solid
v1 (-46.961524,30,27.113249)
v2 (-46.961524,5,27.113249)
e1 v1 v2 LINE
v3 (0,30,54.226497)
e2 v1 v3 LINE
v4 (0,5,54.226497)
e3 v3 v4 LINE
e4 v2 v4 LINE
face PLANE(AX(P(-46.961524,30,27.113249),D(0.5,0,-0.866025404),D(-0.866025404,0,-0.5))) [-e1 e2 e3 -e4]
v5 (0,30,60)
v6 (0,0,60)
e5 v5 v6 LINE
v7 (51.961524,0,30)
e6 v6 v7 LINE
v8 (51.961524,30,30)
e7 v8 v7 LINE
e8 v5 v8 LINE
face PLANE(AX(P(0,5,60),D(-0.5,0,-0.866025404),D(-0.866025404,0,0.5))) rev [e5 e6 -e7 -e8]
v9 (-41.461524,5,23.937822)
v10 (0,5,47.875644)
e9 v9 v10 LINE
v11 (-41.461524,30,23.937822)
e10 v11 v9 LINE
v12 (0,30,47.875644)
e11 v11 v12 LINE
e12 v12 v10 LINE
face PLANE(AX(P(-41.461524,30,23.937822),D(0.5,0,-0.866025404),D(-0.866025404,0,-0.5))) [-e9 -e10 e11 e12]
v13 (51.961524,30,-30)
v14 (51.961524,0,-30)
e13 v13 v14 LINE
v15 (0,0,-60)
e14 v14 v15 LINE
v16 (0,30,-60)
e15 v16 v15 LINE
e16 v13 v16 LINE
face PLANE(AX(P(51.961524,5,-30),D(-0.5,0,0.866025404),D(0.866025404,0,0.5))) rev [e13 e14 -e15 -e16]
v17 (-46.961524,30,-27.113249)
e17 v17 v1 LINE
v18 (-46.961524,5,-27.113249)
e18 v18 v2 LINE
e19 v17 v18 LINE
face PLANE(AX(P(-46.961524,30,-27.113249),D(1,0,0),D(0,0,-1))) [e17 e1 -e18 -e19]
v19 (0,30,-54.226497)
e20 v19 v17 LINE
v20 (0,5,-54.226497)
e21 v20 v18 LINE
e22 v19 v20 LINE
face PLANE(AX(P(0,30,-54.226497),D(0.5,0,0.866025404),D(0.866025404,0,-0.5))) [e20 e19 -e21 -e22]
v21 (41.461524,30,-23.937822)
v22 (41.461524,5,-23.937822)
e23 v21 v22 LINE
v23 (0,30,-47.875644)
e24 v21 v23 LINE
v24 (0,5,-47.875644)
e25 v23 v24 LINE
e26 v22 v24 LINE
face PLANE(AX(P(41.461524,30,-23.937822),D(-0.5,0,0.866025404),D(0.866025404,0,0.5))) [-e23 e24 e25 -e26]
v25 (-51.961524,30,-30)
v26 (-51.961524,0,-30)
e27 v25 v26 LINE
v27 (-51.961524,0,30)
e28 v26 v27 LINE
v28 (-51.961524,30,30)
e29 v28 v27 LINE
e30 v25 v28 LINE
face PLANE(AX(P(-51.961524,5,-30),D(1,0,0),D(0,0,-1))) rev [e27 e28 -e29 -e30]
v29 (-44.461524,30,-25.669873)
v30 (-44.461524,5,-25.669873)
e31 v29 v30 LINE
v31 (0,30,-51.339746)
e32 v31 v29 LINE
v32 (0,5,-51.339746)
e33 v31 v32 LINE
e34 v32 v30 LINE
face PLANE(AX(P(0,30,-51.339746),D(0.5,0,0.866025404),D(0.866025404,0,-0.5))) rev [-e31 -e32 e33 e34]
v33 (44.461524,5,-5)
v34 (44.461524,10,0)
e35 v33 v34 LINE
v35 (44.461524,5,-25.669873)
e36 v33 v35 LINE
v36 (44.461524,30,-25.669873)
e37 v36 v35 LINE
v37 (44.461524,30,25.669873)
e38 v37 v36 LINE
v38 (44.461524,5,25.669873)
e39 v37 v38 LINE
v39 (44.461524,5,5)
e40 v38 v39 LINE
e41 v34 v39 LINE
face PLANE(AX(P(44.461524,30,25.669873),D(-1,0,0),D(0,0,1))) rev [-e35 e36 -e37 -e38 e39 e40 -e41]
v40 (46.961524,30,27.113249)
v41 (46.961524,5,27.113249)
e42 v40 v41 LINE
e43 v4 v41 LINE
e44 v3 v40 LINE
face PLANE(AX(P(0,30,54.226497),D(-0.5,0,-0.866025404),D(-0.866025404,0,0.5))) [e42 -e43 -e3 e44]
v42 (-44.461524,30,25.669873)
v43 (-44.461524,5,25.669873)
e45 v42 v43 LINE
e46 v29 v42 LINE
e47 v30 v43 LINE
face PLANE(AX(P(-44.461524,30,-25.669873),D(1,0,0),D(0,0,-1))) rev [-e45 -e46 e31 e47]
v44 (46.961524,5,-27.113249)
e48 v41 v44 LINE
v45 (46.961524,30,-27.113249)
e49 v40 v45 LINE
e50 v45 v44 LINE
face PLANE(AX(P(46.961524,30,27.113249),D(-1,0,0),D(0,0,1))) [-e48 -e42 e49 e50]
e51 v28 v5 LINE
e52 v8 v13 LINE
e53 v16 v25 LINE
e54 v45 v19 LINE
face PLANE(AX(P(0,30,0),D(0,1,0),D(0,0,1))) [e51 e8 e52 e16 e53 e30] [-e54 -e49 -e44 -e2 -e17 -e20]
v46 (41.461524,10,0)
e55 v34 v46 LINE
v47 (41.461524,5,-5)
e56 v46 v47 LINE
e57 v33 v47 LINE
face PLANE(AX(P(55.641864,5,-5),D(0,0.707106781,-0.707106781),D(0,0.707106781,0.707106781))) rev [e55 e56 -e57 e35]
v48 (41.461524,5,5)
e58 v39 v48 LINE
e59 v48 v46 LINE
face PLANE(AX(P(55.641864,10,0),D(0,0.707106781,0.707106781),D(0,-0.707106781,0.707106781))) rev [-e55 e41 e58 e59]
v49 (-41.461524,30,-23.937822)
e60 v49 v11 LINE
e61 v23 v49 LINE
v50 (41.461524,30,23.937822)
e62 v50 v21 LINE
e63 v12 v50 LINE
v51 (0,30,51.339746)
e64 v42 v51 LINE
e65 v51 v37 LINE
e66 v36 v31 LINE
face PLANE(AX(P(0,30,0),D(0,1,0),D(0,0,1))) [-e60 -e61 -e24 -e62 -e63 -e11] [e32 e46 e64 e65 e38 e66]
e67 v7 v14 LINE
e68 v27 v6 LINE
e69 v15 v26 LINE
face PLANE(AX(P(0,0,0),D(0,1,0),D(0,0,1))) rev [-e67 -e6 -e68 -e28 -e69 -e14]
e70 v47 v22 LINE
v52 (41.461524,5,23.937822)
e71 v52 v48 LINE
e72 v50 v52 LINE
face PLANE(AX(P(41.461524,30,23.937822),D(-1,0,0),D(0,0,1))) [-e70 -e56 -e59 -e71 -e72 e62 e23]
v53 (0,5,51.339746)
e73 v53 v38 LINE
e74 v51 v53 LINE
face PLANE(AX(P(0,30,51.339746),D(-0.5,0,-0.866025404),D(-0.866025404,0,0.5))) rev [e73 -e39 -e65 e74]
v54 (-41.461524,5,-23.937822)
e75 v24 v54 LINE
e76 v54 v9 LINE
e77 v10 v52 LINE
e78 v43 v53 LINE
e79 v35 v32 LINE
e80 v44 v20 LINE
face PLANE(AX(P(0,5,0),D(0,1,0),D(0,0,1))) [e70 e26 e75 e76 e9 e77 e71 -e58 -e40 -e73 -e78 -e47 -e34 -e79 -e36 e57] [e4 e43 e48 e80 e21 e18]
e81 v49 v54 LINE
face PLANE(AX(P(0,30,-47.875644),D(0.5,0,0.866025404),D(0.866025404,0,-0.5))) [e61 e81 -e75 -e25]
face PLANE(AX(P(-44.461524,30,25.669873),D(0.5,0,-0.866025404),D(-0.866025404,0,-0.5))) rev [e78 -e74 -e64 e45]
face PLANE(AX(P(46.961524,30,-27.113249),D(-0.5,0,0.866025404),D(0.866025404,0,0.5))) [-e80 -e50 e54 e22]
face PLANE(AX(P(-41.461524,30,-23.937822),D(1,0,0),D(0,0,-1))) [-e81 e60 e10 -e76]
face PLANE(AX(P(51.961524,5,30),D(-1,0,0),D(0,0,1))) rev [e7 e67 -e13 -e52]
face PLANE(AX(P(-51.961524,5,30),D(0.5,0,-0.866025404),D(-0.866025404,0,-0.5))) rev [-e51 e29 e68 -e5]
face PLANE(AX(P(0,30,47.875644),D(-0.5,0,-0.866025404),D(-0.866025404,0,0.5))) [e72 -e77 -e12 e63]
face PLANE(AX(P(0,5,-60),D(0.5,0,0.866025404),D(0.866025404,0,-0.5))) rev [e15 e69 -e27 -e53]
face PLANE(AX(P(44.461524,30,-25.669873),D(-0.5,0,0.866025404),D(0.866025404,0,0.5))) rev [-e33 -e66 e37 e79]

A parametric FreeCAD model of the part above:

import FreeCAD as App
import Part
import Sketcher
Q = App.Units.Quantity


def add_polygon(sketch, points):
    """Adds a closed chain of lines whose ends are joined by coincident constraints."""
    first, n = sketch.GeometryCount, len(points)
    for a, b in zip(points, points[1:] + points[:1]):
        sketch.addGeometry(Part.LineSegment(App.Vector(*a, 0), App.Vector(*b, 0)), False)
    for i in range(n):
        sketch.addConstraint(Sketcher.Constraint("Coincident", first + i, 2, first + (i + 1) % n, 1))

doc = App.newDocument("Part")
params = doc.addObject("Spreadsheet::Sheet", "Params")
for row, (alias, value) in enumerate([
    ("sketch1_height", "60 mm"),
    ("sketch1_length", "60 mm"),
    ("pad1_length", "5 mm"),
    ("sketch2_height", "60 mm"),
    ("sketch2_length", "60 mm"),
    ("pad2_length", "25 mm"),
    ("pad3_length", "25 mm"),
    ("sketch4_height", "10 mm"),
    ("pocket1_length", "3 mm"),
], start=1):
    params.set(f"A{row}", alias)
    params.set(f"B{row}", "=" + value)
    params.setAlias(f"B{row}", alias)

body = doc.addObject("PartDesign::Body", "Body")

sketch1 = body.newObject("Sketcher::SketchObject", "Sketch")
sketch1.AttachmentSupport = (doc.getObject("XZ_Plane"), [""])
sketch1.MapMode = "FlatFace"
add_polygon(sketch1, [(0, 60), (51.961524, 30), (51.961524, -30), (0, -60), (-51.961524, -30), (-51.961524, 30)])
sketch1.addConstraint([
    Sketcher.Constraint("Vertical", 1),
    Sketcher.Constraint("Vertical", 4),
    Sketcher.Constraint("Symmetric", 0, 2, 3, 2, -1, 1),
    Sketcher.Constraint("Symmetric", 2, 2, 5, 2, -1, 1),
    Sketcher.Constraint("PointOnObject", 2, 2, -2),
    Sketcher.Constraint("Parallel", 2, 5),
    Sketcher.Constraint("Horizontal", 1, 2, 3, 2),
    Sketcher.Constraint("DistanceY", 1, 2, 1, 1, 60.0),
    Sketcher.Constraint("Angle", 0, Q("-30 deg")),
    Sketcher.Constraint("Distance", 0, 60.0),
])
sketch1.setExpression("Constraints[13]", "Params.sketch1_height")
sketch1.setExpression("Constraints[15]", "Params.sketch1_length")
pad1 = body.newObject("PartDesign::Pad", "Pad")
pad1.Profile = sketch1
pad1.setExpression("Length", "Params.pad1_length")
pad1.Reversed = True

sketch2 = body.newObject("Sketcher::SketchObject", "Sketch001")
sketch2.AttachmentSupport = (doc.getObject("XZ_Plane"), [""])
sketch2.MapMode = "FlatFace"
sketch2.AttachmentOffset = App.Placement(App.Vector(0, 0, -5), App.Rotation())
add_polygon(sketch2, [(-51.961524, 30), (0, 60), (51.961524, 30), (51.961524, -30), (0, -60), (-51.961524, -30)])
add_polygon(sketch2, [(0, 54.226497), (-46.961524, 27.113249), (-46.961524, -27.113249), (0, -54.226497), (46.961524, -27.113249), (46.961524, 27.113249)])
sketch2.addConstraint([
    Sketcher.Constraint("Vertical", 2),
    Sketcher.Constraint("Vertical", 5),
    Sketcher.Constraint("Vertical", 7),
    Sketcher.Constraint("Vertical", 10),
    Sketcher.Constraint("Symmetric", 0, 2, 3, 2, -1, 1),
    Sketcher.Constraint("Symmetric", 1, 2, 4, 2, -1, 1),
    Sketcher.Constraint("Symmetric", 6, 2, 9, 2, -1, 1),
    Sketcher.Constraint("Symmetric", 8, 2, 11, 2, -1, 1),
    Sketcher.Constraint("PointOnObject", 0, 2, -2),
    Sketcher.Constraint("PointOnObject", 8, 2, -2),
    Sketcher.Constraint("Parallel", 0, 3),
    Sketcher.Constraint("Parallel", 3, 6),
    Sketcher.Constraint("Parallel", 4, 8),
    Sketcher.Constraint("Parallel", 8, 11),
    Sketcher.Constraint("Horizontal", 2, 2, 4, 2),
    Sketcher.Constraint("DistanceY", 2, 2, 2, 1, 60.0),
    Sketcher.Constraint("Angle", 0, Q("30 deg")),
    Sketcher.Constraint("Distance", 0, 60.0),
    Sketcher.Constraint("DistanceX", 5, 2, 6, 2, 5.0),
    Sketcher.Constraint("DistanceY", 7, 2, 7, 1, 54.226497),
])
sketch2.setExpression("Constraints[27]", "Params.sketch2_height")
sketch2.setExpression("Constraints[29]", "Params.sketch2_length")
pad2 = body.newObject("PartDesign::Pad", "Pad001")
pad2.Profile = sketch2
pad2.setExpression("Length", "Params.pad2_length")
pad2.Reversed = True

sketch3 = body.newObject("Sketcher::SketchObject", "Sketch002")
sketch3.AttachmentSupport = (doc.getObject("XZ_Plane"), [""])
sketch3.MapMode = "FlatFace"
sketch3.AttachmentOffset = App.Placement(App.Vector(0, 0, -5), App.Rotation())
add_polygon(sketch3, [(-44.461524, -25.669873), (-44.461524, 25.669873), (0, 51.339746), (44.461524, 25.669873), (44.461524, -25.669873), (0, -51.339746)])
add_polygon(sketch3, [(-41.461524, -23.937822), (0, -47.875644), (41.461524, -23.937822), (41.461524, 23.937822), (0, 47.875644), (-41.461524, 23.937822)])
sketch3.addConstraint([
    Sketcher.Constraint("Vertical", 0),
    Sketcher.Constraint("Vertical", 3),
    Sketcher.Constraint("Vertical", 8),
    Sketcher.Constraint("Vertical", 11),
    Sketcher.Constraint("Symmetric", 0, 2, 3, 2, -1, 1),
    Sketcher.Constraint("Symmetric", 1, 2, 4, 2, -1, 1),
    Sketcher.Constraint("Symmetric", 6, 2, 9, 2, -1, 1),
    Sketcher.Constraint("Symmetric", 7, 2, 10, 2, -1, 1),
    Sketcher.Constraint("PointOnObject", 1, 2, -2),
    Sketcher.Constraint("PointOnObject", 6, 2, -2),
    Sketcher.Constraint("Parallel", 2, 5),
    Sketcher.Constraint("Parallel", 5, 6),
    Sketcher.Constraint("Parallel", 4, 7),
    Sketcher.Constraint("Parallel", 6, 9),
    Sketcher.Constraint("Horizontal", 0, 2, 2, 2),
    Sketcher.Constraint("Angle", 1, Q("30 deg")),
    Sketcher.Constraint("DistanceX", 7, 2, 3, 2, 3.0),
    Sketcher.Constraint("DistanceY", 4, 2, 6, 2, 3.464102),
    Sketcher.Constraint("DistanceY", 0, 1, 0, 2, 51.339746),
    Sketcher.Constraint("DistanceX", 0, 2, 2, 2, 88.923048),
])
pad3 = body.newObject("PartDesign::Pad", "Pad002")
pad3.Profile = sketch3
pad3.setExpression("Length", "Params.pad3_length")
pad3.Reversed = True

sketch4 = body.newObject("Sketcher::SketchObject", "Sketch003")
sketch4.AttachmentSupport = (doc.getObject("YZ_Plane"), [""])
sketch4.MapMode = "FlatFace"
sketch4.AttachmentOffset = App.Placement(App.Vector(0, 0, 41.461524), App.Rotation())
add_polygon(sketch4, [(5, -5), (5, 5), (10, 0)])
sketch4.addConstraint([
    Sketcher.Constraint("Vertical", 0),
    Sketcher.Constraint("PointOnObject", 1, 2, -1),
    Sketcher.Constraint("Perpendicular", 1, 2),
    Sketcher.Constraint("Equal", 1, 2),
    Sketcher.Constraint("DistanceY", 0, 1, 0, 2, 10.0),
    Sketcher.Constraint("DistanceX", -1, 1, 0, 2, 5.0),
])
sketch4.setExpression("Constraints[7]", "Params.sketch4_height")
pocket1 = body.newObject("PartDesign::Pocket", "Pocket")
pocket1.Profile = sketch4
pocket1.setExpression("Length", "Params.pocket1_length")
pocket1.Reversed = True

doc.recompute()
